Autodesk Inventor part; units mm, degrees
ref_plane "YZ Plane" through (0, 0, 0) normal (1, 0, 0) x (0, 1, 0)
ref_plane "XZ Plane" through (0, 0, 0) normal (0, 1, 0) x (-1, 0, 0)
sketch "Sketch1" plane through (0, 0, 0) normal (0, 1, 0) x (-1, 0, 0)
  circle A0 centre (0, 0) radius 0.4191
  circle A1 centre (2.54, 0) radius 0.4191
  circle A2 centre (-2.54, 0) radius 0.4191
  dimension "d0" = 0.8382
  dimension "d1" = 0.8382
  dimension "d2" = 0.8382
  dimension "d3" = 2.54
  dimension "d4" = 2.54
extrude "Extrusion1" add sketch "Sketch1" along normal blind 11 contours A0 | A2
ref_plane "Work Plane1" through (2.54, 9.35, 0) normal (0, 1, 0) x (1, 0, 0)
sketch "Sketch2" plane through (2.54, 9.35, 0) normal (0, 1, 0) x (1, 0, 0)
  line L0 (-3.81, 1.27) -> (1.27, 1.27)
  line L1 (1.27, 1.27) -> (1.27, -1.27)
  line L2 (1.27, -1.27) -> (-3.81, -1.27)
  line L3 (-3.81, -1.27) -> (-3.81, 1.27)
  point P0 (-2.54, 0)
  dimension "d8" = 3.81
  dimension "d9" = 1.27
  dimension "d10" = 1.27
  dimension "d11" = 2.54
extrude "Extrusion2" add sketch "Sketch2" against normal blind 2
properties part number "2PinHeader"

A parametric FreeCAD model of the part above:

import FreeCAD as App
import Part
import Sketcher
Q = App.Units.Quantity


def add_polygon(sketch, points):
    """Adds a closed chain of lines whose ends are joined by coincident constraints."""
    first, n = sketch.GeometryCount, len(points)
    for a, b in zip(points, points[1:] + points[:1]):
        sketch.addGeometry(Part.LineSegment(App.Vector(*a, 0), App.Vector(*b, 0)), False)
    for i in range(n):
        sketch.addConstraint(Sketcher.Constraint("Coincident", first + i, 2, first + (i + 1) % n, 1))

doc = App.newDocument("Part")
body = doc.addObject("PartDesign::Body", "Body")
body.AllowCompound = True

sketch1 = body.newObject("Sketcher::SketchObject", "Sketch")
sketch1.AttachmentSupport = (doc.getObject("XZ_Plane"), [""])
sketch1.MapMode = "FlatFace"
sketch1.addGeometry([
    Part.Circle(App.Vector(0, 0, 0), App.Vector(0, 0, 1), 0.4191),
    Part.Circle(App.Vector(2.54, 0, 0), App.Vector(0, 0, 1), 0.4191),
], False)
sketch1.addConstraint([
    Sketcher.Constraint("Coincident", 0, 3, -1, 1),
    Sketcher.Constraint("Equal", 0, 1),
    Sketcher.Constraint("PointOnObject", 1, 3, -1),
    Sketcher.Constraint("Diameter", 0, Q("0.033 in")),
    Sketcher.Constraint("DistanceX", -1, 1, 1, 3, Q("0.1 in")),
])
pad1 = body.newObject("PartDesign::Pad", "Pad")
pad1.Profile = sketch1
pad1.Length = 11
pad1.Reversed = True

sketch2 = body.newObject("Sketcher::SketchObject", "Sketch001")
sketch2.AttachmentSupport = (doc.getObject("XZ_Plane"), [""])
sketch2.MapMode = "FlatFace"
sketch2.AttachmentOffset = App.Placement(App.Vector(0, 0, -0.3681102 * 25.4), App.Rotation())
add_polygon(sketch2, [(3.81, -1.27), (-1.27, -1.27), (-1.27, 1.27), (3.81, 1.27)])
sketch2.addConstraint([
    Sketcher.Constraint("Horizontal", 0),
    Sketcher.Constraint("Vertical", 1),
    Sketcher.Constraint("Horizontal", 2),
    Sketcher.Constraint("Vertical", 3),
    Sketcher.Constraint("DistanceY", 1, 1, 1, 2, Q("0.1 in")),
    Sketcher.Constraint("DistanceX", 0, 2, -1, 1, Q("0.05 in")),
    Sketcher.Constraint("DistanceY", 0, 2, -1, 1, Q("0.05 in")),
    Sketcher.Constraint("DistanceX", -1, 1, 2, 2, Q("0.15 in")),
])
pad2 = body.newObject("PartDesign::Pad", "Pad001")
pad2.Profile = sketch2
pad2.Length = 2

doc.recompute()
